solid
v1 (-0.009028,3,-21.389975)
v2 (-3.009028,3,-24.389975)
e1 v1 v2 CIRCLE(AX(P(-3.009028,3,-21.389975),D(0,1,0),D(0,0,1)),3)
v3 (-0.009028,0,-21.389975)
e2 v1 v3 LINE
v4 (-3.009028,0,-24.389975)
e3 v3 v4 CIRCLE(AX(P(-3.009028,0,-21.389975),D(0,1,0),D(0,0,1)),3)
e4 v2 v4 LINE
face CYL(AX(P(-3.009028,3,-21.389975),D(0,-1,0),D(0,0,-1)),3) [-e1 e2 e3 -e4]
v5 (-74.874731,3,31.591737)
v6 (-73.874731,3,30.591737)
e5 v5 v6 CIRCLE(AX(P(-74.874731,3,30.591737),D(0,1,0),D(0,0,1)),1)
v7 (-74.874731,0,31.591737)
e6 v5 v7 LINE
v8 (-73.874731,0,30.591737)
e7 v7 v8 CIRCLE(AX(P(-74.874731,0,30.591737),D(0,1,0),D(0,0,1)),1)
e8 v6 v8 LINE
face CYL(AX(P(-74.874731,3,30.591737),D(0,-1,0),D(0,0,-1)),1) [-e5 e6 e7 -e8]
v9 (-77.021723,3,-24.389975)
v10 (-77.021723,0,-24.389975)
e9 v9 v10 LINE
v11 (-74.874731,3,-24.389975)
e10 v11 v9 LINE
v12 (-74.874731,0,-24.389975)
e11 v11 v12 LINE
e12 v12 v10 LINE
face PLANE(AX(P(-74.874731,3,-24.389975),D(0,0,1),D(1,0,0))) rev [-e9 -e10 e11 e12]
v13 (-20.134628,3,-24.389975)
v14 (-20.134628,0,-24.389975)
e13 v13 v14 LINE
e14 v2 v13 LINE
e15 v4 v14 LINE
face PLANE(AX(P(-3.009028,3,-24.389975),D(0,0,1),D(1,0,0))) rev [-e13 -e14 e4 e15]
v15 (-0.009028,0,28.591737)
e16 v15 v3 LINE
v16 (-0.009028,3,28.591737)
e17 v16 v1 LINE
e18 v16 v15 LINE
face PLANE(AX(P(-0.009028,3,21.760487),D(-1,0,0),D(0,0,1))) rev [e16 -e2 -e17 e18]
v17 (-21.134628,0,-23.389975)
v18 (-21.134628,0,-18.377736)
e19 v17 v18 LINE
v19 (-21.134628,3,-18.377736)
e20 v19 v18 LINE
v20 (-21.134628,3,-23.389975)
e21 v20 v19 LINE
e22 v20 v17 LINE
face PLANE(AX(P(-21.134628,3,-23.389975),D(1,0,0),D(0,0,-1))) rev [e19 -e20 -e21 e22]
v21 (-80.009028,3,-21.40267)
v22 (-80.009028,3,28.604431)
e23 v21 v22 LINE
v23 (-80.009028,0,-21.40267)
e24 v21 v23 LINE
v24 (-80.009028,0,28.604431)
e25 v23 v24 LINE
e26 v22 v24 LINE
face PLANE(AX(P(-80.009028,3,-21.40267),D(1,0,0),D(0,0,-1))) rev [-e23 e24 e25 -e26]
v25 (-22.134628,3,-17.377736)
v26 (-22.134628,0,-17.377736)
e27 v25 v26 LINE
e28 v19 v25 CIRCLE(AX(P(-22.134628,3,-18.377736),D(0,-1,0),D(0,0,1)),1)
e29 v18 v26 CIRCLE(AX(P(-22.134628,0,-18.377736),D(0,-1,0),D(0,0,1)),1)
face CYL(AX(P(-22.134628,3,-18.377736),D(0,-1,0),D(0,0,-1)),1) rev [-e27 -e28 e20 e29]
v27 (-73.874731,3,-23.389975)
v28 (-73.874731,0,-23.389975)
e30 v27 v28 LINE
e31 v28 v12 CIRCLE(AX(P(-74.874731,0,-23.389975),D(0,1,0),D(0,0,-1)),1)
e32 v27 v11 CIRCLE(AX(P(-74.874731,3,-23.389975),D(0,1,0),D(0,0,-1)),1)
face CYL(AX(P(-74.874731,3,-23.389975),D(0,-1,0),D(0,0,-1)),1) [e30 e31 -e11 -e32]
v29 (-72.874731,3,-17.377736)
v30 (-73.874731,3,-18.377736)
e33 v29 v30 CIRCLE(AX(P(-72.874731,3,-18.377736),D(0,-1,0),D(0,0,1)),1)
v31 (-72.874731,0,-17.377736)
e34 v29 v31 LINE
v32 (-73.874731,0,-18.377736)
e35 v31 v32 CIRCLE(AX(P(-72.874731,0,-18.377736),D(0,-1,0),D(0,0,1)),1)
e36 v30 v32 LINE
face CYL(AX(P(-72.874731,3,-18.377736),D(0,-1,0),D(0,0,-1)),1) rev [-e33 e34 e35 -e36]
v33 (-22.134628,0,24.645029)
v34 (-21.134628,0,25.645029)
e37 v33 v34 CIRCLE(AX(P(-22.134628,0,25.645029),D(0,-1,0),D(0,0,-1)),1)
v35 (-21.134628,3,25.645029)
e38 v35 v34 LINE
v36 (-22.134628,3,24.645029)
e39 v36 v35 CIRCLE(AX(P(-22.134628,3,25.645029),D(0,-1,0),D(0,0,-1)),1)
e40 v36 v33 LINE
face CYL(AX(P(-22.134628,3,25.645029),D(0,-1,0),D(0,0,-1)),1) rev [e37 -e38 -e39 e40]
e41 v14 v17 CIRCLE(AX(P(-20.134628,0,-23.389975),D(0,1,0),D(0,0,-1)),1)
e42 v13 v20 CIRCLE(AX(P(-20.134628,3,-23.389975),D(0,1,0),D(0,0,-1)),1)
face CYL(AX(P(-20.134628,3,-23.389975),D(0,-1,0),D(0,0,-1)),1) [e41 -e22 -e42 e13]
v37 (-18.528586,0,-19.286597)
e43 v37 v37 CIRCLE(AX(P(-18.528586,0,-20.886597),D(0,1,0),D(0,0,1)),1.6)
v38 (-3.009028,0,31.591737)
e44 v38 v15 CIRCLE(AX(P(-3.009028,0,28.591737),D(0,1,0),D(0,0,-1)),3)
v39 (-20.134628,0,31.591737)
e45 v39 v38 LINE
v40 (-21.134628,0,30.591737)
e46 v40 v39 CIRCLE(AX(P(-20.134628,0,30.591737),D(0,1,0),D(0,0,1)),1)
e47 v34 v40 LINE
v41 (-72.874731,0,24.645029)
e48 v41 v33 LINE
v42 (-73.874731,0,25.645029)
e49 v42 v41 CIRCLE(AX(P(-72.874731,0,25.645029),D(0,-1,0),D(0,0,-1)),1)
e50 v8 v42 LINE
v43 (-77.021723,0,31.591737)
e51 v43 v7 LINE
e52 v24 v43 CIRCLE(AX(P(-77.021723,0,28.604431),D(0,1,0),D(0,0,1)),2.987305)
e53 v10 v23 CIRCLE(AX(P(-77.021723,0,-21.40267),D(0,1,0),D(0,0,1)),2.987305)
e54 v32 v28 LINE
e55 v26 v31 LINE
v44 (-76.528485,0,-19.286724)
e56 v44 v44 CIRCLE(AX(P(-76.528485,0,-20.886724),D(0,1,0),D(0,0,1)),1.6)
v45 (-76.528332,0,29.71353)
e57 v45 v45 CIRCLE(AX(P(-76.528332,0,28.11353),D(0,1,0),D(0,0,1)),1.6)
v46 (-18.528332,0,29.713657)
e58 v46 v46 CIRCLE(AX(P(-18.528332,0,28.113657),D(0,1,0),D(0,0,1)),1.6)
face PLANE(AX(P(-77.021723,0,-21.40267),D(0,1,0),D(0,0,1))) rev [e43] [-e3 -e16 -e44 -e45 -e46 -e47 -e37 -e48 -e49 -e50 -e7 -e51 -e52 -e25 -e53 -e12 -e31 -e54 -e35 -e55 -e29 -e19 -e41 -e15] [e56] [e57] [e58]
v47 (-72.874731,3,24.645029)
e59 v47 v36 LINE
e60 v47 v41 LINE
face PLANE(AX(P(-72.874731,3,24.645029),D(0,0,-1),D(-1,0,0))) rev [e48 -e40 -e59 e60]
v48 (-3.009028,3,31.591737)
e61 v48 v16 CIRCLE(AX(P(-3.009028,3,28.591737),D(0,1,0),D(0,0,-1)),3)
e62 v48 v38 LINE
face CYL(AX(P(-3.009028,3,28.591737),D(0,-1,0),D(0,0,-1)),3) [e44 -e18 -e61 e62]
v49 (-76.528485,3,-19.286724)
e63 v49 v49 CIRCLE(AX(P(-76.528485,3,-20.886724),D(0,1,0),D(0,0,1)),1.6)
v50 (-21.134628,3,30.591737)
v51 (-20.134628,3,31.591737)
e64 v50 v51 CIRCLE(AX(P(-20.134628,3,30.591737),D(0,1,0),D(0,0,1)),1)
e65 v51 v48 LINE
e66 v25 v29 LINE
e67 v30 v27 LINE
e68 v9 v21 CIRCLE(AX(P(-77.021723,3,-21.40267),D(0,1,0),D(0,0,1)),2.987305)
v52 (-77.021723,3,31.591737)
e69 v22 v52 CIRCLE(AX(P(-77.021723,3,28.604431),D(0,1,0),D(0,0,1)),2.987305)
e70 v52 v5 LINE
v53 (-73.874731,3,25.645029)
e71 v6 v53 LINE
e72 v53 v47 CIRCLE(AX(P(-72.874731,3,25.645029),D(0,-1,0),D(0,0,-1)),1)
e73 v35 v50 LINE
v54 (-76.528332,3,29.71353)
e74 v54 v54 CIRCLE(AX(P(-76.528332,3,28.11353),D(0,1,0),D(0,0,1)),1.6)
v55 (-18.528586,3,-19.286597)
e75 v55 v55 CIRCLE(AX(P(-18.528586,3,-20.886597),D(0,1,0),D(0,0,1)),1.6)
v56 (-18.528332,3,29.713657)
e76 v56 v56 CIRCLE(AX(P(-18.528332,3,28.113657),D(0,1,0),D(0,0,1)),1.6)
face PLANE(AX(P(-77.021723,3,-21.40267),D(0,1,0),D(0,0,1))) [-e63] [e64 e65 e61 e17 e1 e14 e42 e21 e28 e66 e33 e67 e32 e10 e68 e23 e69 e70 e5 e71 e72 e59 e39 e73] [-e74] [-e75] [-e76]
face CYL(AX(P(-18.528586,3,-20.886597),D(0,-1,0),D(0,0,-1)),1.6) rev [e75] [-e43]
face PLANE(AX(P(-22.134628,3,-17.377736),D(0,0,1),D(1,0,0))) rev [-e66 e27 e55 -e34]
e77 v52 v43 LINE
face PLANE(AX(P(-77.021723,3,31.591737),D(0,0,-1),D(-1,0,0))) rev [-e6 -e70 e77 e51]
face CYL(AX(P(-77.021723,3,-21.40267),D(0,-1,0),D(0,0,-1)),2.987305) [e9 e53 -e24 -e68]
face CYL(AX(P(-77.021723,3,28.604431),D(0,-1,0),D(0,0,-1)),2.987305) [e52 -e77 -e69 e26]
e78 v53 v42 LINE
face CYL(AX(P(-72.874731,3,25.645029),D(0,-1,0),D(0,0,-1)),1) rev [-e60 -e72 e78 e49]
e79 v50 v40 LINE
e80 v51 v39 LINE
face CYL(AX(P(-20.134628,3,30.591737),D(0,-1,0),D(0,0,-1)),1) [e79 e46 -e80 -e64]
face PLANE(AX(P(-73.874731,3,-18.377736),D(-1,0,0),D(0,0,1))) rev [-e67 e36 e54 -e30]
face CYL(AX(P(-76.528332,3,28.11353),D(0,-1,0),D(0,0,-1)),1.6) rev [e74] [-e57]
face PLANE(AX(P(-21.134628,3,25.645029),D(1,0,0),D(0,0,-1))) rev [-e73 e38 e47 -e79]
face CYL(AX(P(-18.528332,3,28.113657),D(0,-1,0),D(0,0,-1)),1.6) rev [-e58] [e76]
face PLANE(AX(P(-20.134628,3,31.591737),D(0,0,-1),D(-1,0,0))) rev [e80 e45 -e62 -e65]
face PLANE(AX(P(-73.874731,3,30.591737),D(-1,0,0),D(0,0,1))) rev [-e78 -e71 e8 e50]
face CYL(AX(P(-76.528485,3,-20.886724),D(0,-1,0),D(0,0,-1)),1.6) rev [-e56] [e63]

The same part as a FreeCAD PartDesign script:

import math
import FreeCAD as App
import Part
import Sketcher

doc = App.newDocument("Part")
body = doc.addObject("PartDesign::Body", "Body")

sketch1 = doc.addObject("Sketcher::SketchObject", "Sketch")
body.addObject(sketch1)
sketch1.AttachmentSupport = (doc.XZ_Plane, [""])
sketch1.MapMode = "FlatFace"
sketch1.addGeometry([
    Part.LineSegment(App.Vector(-21.134628, -23.389975, 0), App.Vector(-21.134628, -18.377736, 0)),
    Part.ArcOfCircle(Part.Circle(App.Vector(-22.134628, -18.377736, 0), App.Vector(0, 0, 1), 1), math.radians(0), math.radians(90)),
    Part.LineSegment(App.Vector(-22.134628, -17.377736, 0), App.Vector(-72.874731, -17.377736, 0)),
    Part.ArcOfCircle(Part.Circle(App.Vector(-72.874731, -18.377736, 0), App.Vector(0, 0, 1), 1), math.radians(90), math.radians(180)),
    Part.LineSegment(App.Vector(-73.874731, -18.377736, 0), App.Vector(-73.874731, -23.389975, 0)),
    Part.ArcOfCircle(Part.Circle(App.Vector(-74.874731, -23.389975, 0), App.Vector(0, 0, 1), 1), math.radians(-90), math.radians(0)),
    Part.LineSegment(App.Vector(-74.874731, -24.389975, 0), App.Vector(-77.021723, -24.389975, 0)),
    Part.ArcOfCircle(Part.Circle(App.Vector(-77.021723, -21.40267, 0), App.Vector(0, 0, 1), 2.987305), math.radians(180), math.radians(270)),
    Part.LineSegment(App.Vector(-80.009028, -21.40267, 0), App.Vector(-80.009028, 28.604431, 0)),
    Part.ArcOfCircle(Part.Circle(App.Vector(-77.021723, 28.604431, 0), App.Vector(0, 0, 1), 2.987305), math.radians(90), math.radians(180)),
    Part.LineSegment(App.Vector(-77.021723, 31.591737, 0), App.Vector(-74.874731, 31.591737, 0)),
    Part.ArcOfCircle(Part.Circle(App.Vector(-74.874731, 30.591737, 0), App.Vector(0, 0, 1), 1), math.radians(0), math.radians(90)),
    Part.LineSegment(App.Vector(-73.874731, 30.591737, 0), App.Vector(-73.874731, 25.645029, 0)),
    Part.ArcOfCircle(Part.Circle(App.Vector(-72.874731, 25.645029, 0), App.Vector(0, 0, 1), 1), math.radians(-180), math.radians(-90)),
    Part.LineSegment(App.Vector(-72.874731, 24.645029, 0), App.Vector(-22.134628, 24.645029, 0)),
    Part.ArcOfCircle(Part.Circle(App.Vector(-22.134628, 25.645029, 0), App.Vector(0, 0, 1), 1), math.radians(-90), math.radians(0)),
    Part.LineSegment(App.Vector(-21.134628, 25.645029, 0), App.Vector(-21.134628, 30.591737, 0)),
    Part.ArcOfCircle(Part.Circle(App.Vector(-20.134628, 30.591737, 0), App.Vector(0, 0, 1), 1), math.radians(90), math.radians(180)),
    Part.LineSegment(App.Vector(-20.134628, 31.591737, 0), App.Vector(-3.009028, 31.591737, 0)),
    Part.ArcOfCircle(Part.Circle(App.Vector(-3.009028, 28.591737, 0), App.Vector(0, 0, 1), 3), math.radians(0), math.radians(90)),
    Part.LineSegment(App.Vector(-0.009028, 28.591737, 0), App.Vector(-0.009028, -21.389975, 0)),
    Part.ArcOfCircle(Part.Circle(App.Vector(-3.009028, -21.389975, 0), App.Vector(0, 0, 1), 3), math.radians(-90), math.radians(0)),
    Part.LineSegment(App.Vector(-3.009028, -24.389975, 0), App.Vector(-20.134628, -24.389975, 0)),
    Part.ArcOfCircle(Part.Circle(App.Vector(-20.134628, -23.389975, 0), App.Vector(0, 0, 1), 1), math.radians(-180), math.radians(-90)),
    Part.Circle(App.Vector(-76.528332, 28.11353, 0), App.Vector(0, 0, 1), 1.6),
    Part.Circle(App.Vector(-18.528332, 28.113657, 0), App.Vector(0, 0, 1), 1.6),
    Part.Circle(App.Vector(-76.528485, -20.886724, 0), App.Vector(0, 0, 1), 1.6),
    Part.Circle(App.Vector(-18.528586, -20.886597, 0), App.Vector(0, 0, 1), 1.6),
], False)
sketch1.addConstraint([
    Sketcher.Constraint("Tangent", 0, 2, 1, 1),
    Sketcher.Constraint("Tangent", 1, 2, 2, 1),
    Sketcher.Constraint("Tangent", 2, 2, 3, 1),
    Sketcher.Constraint("Tangent", 3, 2, 4, 1),
    Sketcher.Constraint("Tangent", 4, 2, 5, 2),
    Sketcher.Constraint("Tangent", 5, 1, 6, 1),
    Sketcher.Constraint("Tangent", 6, 2, 7, 2),
    Sketcher.Constraint("Tangent", 7, 1, 8, 1),
    Sketcher.Constraint("Tangent", 8, 2, 9, 2),
    Sketcher.Constraint("Tangent", 9, 1, 10, 1),
    Sketcher.Constraint("Tangent", 10, 2, 11, 2),
    Sketcher.Constraint("Tangent", 11, 1, 12, 1),
    Sketcher.Constraint("Tangent", 12, 2, 13, 1),
    Sketcher.Constraint("Tangent", 13, 2, 14, 1),
    Sketcher.Constraint("Tangent", 14, 2, 15, 1),
    Sketcher.Constraint("Tangent", 15, 2, 16, 1),
    Sketcher.Constraint("Tangent", 16, 2, 17, 2),
    Sketcher.Constraint("Tangent", 17, 1, 18, 1),
    Sketcher.Constraint("Tangent", 18, 2, 19, 2),
    Sketcher.Constraint("Tangent", 19, 1, 20, 1),
    Sketcher.Constraint("Tangent", 20, 2, 21, 2),
    Sketcher.Constraint("Tangent", 21, 1, 22, 1),
    Sketcher.Constraint("Tangent", 22, 2, 23, 2),
    Sketcher.Constraint("Tangent", 23, 1, 0, 1),
    Sketcher.Constraint("Vertical", 0),
    Sketcher.Constraint("Horizontal", 2),
    Sketcher.Constraint("Vertical", 4),
    Sketcher.Constraint("Horizontal", 6),
    Sketcher.Constraint("Vertical", 8),
    Sketcher.Constraint("Horizontal", 10),
    Sketcher.Constraint("Vertical", 12),
    Sketcher.Constraint("Horizontal", 14),
    Sketcher.Constraint("Vertical", 16),
    Sketcher.Constraint("Horizontal", 18),
    Sketcher.Constraint("Vertical", 20),
    Sketcher.Constraint("Horizontal", 22),
    Sketcher.Constraint("Equal", 1, 3),
    Sketcher.Constraint("Equal", 3, 5),
    Sketcher.Constraint("Equal", 7, 9),
    Sketcher.Constraint("Equal", 5, 11),
    Sketcher.Constraint("Equal", 11, 13),
    Sketcher.Constraint("Equal", 13, 15),
    Sketcher.Constraint("Equal", 15, 17),
    Sketcher.Constraint("Equal", 19, 21),
    Sketcher.Constraint("Equal", 17, 23),
    Sketcher.Constraint("Equal", 24, 25),
    Sketcher.Constraint("Equal", 25, 26),
    Sketcher.Constraint("Equal", 26, 27),
    Sketcher.Constraint("Horizontal", 11, 3, 17, 3),
    Sketcher.Constraint("Horizontal", 5, 3, 23, 3),
    Sketcher.Constraint("Vertical", 5, 3, 11, 3),
    Sketcher.Constraint("Vertical", 1, 3, 15, 3),
    Sketcher.Constraint("Radius", 1, 1.0),
    Sketcher.Constraint("Radius", 19, 3.0),
    Sketcher.Constraint("Diameter", 24, 3.2),
    Sketcher.Constraint("DistanceX", 18, 1, 18, 2, 17.1256),
    Sketcher.Constraint("DistanceY", 8, 1, 8, 2, 50.007102),
    Sketcher.Constraint("Radius", 7, 2.987305),
    Sketcher.Constraint("DistanceY", 0, 1, 0, 2, 5.012239),
    Sketcher.Constraint("DistanceY", 7, 3, 13, 3, 47.047699),
    Sketcher.Constraint("DistanceY", 24, 3, 9, 3, 0.490902),
    Sketcher.Constraint("DistanceX", 24, 3, 11, 3, 1.653601),
    Sketcher.Constraint("DistanceX", 2, 2, 2, 1, 50.740103),
    Sketcher.Constraint("DistanceX", 6, 2, 6, 1, 2.146992),
    Sketcher.Constraint("DistanceX", 1, 3, -1, 1, 22.134628),
    Sketcher.Constraint("DistanceY", 7, 3, -1, 1, 21.40267),
    Sketcher.Constraint("DistanceY", 25, 3, 17, 3, 2.47808),
    Sketcher.Constraint("DistanceX", 7, 3, 26, 3, 0.493239),
    Sketcher.Constraint("DistanceY", 5, 3, 26, 3, 2.503251),
    Sketcher.Constraint("DistanceX", 23, 3, 27, 3, 1.606042),
    Sketcher.Constraint("DistanceY", 23, 3, 27, 3, 2.503378),
    Sketcher.Constraint("DistanceX", 25, 3, -1, 1, 18.528332),
])
pad1 = doc.addObject("PartDesign::Pad", "Pad")
body.addObject(pad1)
pad1.Profile = sketch1
pad1.Length = 3
pad1.Reversed = True

doc.recompute()
